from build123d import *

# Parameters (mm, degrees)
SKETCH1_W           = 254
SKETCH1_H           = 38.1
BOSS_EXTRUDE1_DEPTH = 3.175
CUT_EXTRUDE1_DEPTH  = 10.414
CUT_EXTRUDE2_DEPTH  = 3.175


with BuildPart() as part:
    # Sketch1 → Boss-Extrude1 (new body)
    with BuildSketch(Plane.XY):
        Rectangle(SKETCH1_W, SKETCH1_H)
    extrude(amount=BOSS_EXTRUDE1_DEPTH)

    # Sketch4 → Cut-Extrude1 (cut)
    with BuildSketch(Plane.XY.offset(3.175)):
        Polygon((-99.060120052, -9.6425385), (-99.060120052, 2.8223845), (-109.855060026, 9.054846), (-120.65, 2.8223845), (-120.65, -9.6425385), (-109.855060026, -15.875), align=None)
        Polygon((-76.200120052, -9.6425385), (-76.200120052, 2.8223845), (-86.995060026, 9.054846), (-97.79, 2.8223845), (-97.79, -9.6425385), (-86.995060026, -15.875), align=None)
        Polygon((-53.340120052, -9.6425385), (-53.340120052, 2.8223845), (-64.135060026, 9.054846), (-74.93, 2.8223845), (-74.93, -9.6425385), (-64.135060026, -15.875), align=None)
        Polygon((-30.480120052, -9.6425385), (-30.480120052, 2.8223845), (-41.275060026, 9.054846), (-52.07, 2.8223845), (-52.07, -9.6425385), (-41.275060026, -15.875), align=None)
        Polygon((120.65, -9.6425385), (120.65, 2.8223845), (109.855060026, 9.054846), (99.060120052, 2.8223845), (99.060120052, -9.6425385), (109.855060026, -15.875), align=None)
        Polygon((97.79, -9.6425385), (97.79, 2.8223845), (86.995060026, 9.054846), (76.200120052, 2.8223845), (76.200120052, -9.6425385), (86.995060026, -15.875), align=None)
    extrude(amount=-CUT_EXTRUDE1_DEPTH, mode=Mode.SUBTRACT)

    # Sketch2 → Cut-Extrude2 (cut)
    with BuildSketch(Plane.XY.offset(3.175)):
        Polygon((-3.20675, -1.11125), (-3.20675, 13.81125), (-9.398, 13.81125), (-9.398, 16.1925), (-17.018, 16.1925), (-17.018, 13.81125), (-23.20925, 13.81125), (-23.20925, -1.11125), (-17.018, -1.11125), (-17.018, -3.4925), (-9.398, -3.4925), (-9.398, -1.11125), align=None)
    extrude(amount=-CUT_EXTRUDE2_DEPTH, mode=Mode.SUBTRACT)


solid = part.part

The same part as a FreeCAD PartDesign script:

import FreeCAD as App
import Part
import Sketcher

V = App.Vector
Q = App.Units.Quantity

doc = App.newDocument("Part")
params = doc.addObject("Spreadsheet::Sheet", "Params")
for row, (alias, value) in enumerate([
    ("sketch1_width", "10 in"),
    ("sketch1_height", "1.5 in"),
    ("pad1_length", "0.125 in"),
    ("pocket1_length", "0.41 in"),
    ("sketch3_width", "0.3 in"),
    ("sketch3_height", "0.09375 in"),
    ("pocket2_length", "0.125 in"),
], start=1):
    params.set(f"A{row}", alias)
    params.set(f"B{row}", "=" + value)
    params.setAlias(f"B{row}", alias)

body = doc.addObject("PartDesign::Body", "Body")

# Sketch on XY plane
sketch1 = doc.addObject("Sketcher::SketchObject", "Sketch")
body.addObject(sketch1)
sketch1.AttachmentSupport = (doc.XY_Plane, [""])
sketch1.MapMode = "FlatFace"
sketch1.addGeometry(Part.LineSegment(V(-127, 19.05, 0), V(-127, -19.05, 0)), False)
sketch1.addGeometry(Part.LineSegment(V(-127, -19.05, 0), V(127, -19.05, 0)), False)
sketch1.addGeometry(Part.LineSegment(V(127, -19.05, 0), V(127, 19.05, 0)), False)
sketch1.addGeometry(Part.LineSegment(V(127, 19.05, 0), V(-127, 19.05, 0)), False)
sketch1.addConstraint(Sketcher.Constraint("Coincident", 0, 2, 1, 1))
sketch1.addConstraint(Sketcher.Constraint("Coincident", 1, 2, 2, 1))
sketch1.addConstraint(Sketcher.Constraint("Coincident", 2, 2, 3, 1))
sketch1.addConstraint(Sketcher.Constraint("Coincident", 3, 2, 0, 1))
sketch1.addConstraint(Sketcher.Constraint("Vertical", 0))
sketch1.addConstraint(Sketcher.Constraint("Horizontal", 1))
sketch1.addConstraint(Sketcher.Constraint("Vertical", 2))
sketch1.addConstraint(Sketcher.Constraint("Horizontal", 3))
sketch1.addConstraint(Sketcher.Constraint("Symmetric", 0, 2, 2, 2, -1, 1))
sketch1.addConstraint(Sketcher.Constraint("DistanceX", 1, 1, 1, 2, Q("10 in")))
sketch1.addConstraint(Sketcher.Constraint("DistanceY", 0, 2, 0, 1, Q("1.5 in")))
sketch1.setExpression("Constraints[9]", "Params.sketch1_width")
sketch1.setExpression("Constraints[10]", "Params.sketch1_height")
pad1 = doc.addObject("PartDesign::Pad", "Pad")
body.addObject(pad1)
pad1.Profile = sketch1
pad1.setExpression("Length", "Params.pad1_length")

# Sketch on XY plane
sketch2 = doc.addObject("Sketcher::SketchObject", "Sketch001")
body.addObject(sketch2)
sketch2.AttachmentSupport = (doc.XY_Plane, [""])
sketch2.MapMode = "FlatFace"
sketch2.AttachmentOffset = App.Placement(V(0, 0, 0.125 * 25.4), App.Rotation())
sketch2.addGeometry(Part.LineSegment(V(-99.06012, -9.642539, 0), V(-99.06012, 2.822385, 0)), False)
sketch2.addGeometry(Part.LineSegment(V(-99.06012, 2.822385, 0), V(-109.85506, 9.054846, 0)), False)
sketch2.addGeometry(Part.LineSegment(V(-109.85506, 9.054846, 0), V(-120.65, 2.822385, 0)), False)
sketch2.addGeometry(Part.LineSegment(V(-120.65, 2.822385, 0), V(-120.65, -9.642539, 0)), False)
sketch2.addGeometry(Part.LineSegment(V(-120.65, -9.642539, 0), V(-109.85506, -15.875, 0)), False)
sketch2.addGeometry(Part.LineSegment(V(-109.85506, -15.875, 0), V(-99.06012, -9.642539, 0)), False)
sketch2.addGeometry(Part.LineSegment(V(-76.20012, -9.642539, 0), V(-76.20012, 2.822385, 0)), False)
sketch2.addGeometry(Part.LineSegment(V(-76.20012, 2.822385, 0), V(-86.99506, 9.054846, 0)), False)
sketch2.addGeometry(Part.LineSegment(V(-86.99506, 9.054846, 0), V(-97.79, 2.822385, 0)), False)
sketch2.addGeometry(Part.LineSegment(V(-97.79, 2.822385, 0), V(-97.79, -9.642539, 0)), False)
sketch2.addGeometry(Part.LineSegment(V(-97.79, -9.642539, 0), V(-86.99506, -15.875, 0)), False)
sketch2.addGeometry(Part.LineSegment(V(-86.99506, -15.875, 0), V(-76.20012, -9.642539, 0)), False)
sketch2.addGeometry(Part.LineSegment(V(-53.34012, -9.642539, 0), V(-53.34012, 2.822385, 0)), False)
sketch2.addGeometry(Part.LineSegment(V(-53.34012, 2.822385, 0), V(-64.13506, 9.054846, 0)), False)
sketch2.addGeometry(Part.LineSegment(V(-64.13506, 9.054846, 0), V(-74.93, 2.822385, 0)), False)
sketch2.addGeometry(Part.LineSegment(V(-74.93, 2.822385, 0), V(-74.93, -9.642539, 0)), False)
sketch2.addGeometry(Part.LineSegment(V(-74.93, -9.642539, 0), V(-64.13506, -15.875, 0)), False)
sketch2.addGeometry(Part.LineSegment(V(-64.13506, -15.875, 0), V(-53.34012, -9.642539, 0)), False)
sketch2.addGeometry(Part.LineSegment(V(-30.48012, -9.642539, 0), V(-30.48012, 2.822385, 0)), False)
sketch2.addGeometry(Part.LineSegment(V(-30.48012, 2.822385, 0), V(-41.27506, 9.054846, 0)), False)
sketch2.addGeometry(Part.LineSegment(V(-41.27506, 9.054846, 0), V(-52.07, 2.822385, 0)), False)
sketch2.addGeometry(Part.LineSegment(V(-52.07, 2.822385, 0), V(-52.07, -9.642539, 0)), False)
sketch2.addGeometry(Part.LineSegment(V(-52.07, -9.642539, 0), V(-41.27506, -15.875, 0)), False)
sketch2.addGeometry(Part.LineSegment(V(-41.27506, -15.875, 0), V(-30.48012, -9.642539, 0)), False)
sketch2.addGeometry(Part.LineSegment(V(120.65, -9.642539, 0), V(120.65, 2.822385, 0)), False)
sketch2.addGeometry(Part.LineSegment(V(120.65, 2.822385, 0), V(109.85506, 9.054846, 0)), False)
sketch2.addGeometry(Part.LineSegment(V(109.85506, 9.054846, 0), V(99.06012, 2.822385, 0)), False)
sketch2.addGeometry(Part.LineSegment(V(99.06012, 2.822385, 0), V(99.06012, -9.642539, 0)), False)
sketch2.addGeometry(Part.LineSegment(V(99.06012, -9.642539, 0), V(109.85506, -15.875, 0)), False)
sketch2.addGeometry(Part.LineSegment(V(109.85506, -15.875, 0), V(120.65, -9.642539, 0)), False)
sketch2.addGeometry(Part.LineSegment(V(97.79, -9.642539, 0), V(97.79, 2.822385, 0)), False)
sketch2.addGeometry(Part.LineSegment(V(97.79, 2.822385, 0), V(86.99506, 9.054846, 0)), False)
sketch2.addGeometry(Part.LineSegment(V(86.99506, 9.054846, 0), V(76.20012, 2.822385, 0)), False)
sketch2.addGeometry(Part.LineSegment(V(76.20012, 2.822385, 0), V(76.20012, -9.642539, 0)), False)
sketch2.addGeometry(Part.LineSegment(V(76.20012, -9.642539, 0), V(86.99506, -15.875, 0)), False)
sketch2.addGeometry(Part.LineSegment(V(86.99506, -15.875, 0), V(97.79, -9.642539, 0)), False)
sketch2.addConstraint(Sketcher.Constraint("Coincident", 0, 2, 1, 1))
sketch2.addConstraint(Sketcher.Constraint("Coincident", 1, 2, 2, 1))
sketch2.addConstraint(Sketcher.Constraint("Coincident", 2, 2, 3, 1))
sketch2.addConstraint(Sketcher.Constraint("Coincident", 3, 2, 4, 1))
sketch2.addConstraint(Sketcher.Constraint("Coincident", 4, 2, 5, 1))
sketch2.addConstraint(Sketcher.Constraint("Coincident", 5, 2, 0, 1))
sketch2.addConstraint(Sketcher.Constraint("Coincident", 6, 2, 7, 1))
sketch2.addConstraint(Sketcher.Constraint("Coincident", 7, 2, 8, 1))
sketch2.addConstraint(Sketcher.Constraint("Coincident", 8, 2, 9, 1))
sketch2.addConstraint(Sketcher.Constraint("Coincident", 9, 2, 10, 1))
sketch2.addConstraint(Sketcher.Constraint("Coincident", 10, 2, 11, 1))
sketch2.addConstraint(Sketcher.Constraint("Coincident", 11, 2, 6, 1))
sketch2.addConstraint(Sketcher.Constraint("Coincident", 12, 2, 13, 1))
sketch2.addConstraint(Sketcher.Constraint("Coincident", 13, 2, 14, 1))
sketch2.addConstraint(Sketcher.Constraint("Coincident", 14, 2, 15, 1))
sketch2.addConstraint(Sketcher.Constraint("Coincident", 15, 2, 16, 1))
sketch2.addConstraint(Sketcher.Constraint("Coincident", 16, 2, 17, 1))
sketch2.addConstraint(Sketcher.Constraint("Coincident", 17, 2, 12, 1))
sketch2.addConstraint(Sketcher.Constraint("Coincident", 18, 2, 19, 1))
sketch2.addConstraint(Sketcher.Constraint("Coincident", 19, 2, 20, 1))
sketch2.addConstraint(Sketcher.Constraint("Coincident", 20, 2, 21, 1))
sketch2.addConstraint(Sketcher.Constraint("Coincident", 21, 2, 22, 1))
sketch2.addConstraint(Sketcher.Constraint("Coincident", 22, 2, 23, 1))
sketch2.addConstraint(Sketcher.Constraint("Coincident", 23, 2, 18, 1))
sketch2.addConstraint(Sketcher.Constraint("Coincident", 24, 2, 25, 1))
sketch2.addConstraint(Sketcher.Constraint("Coincident", 25, 2, 26, 1))
sketch2.addConstraint(Sketcher.Constraint("Coincident", 26, 2, 27, 1))
sketch2.addConstraint(Sketcher.Constraint("Coincident", 27, 2, 28, 1))
sketch2.addConstraint(Sketcher.Constraint("Coincident", 28, 2, 29, 1))
sketch2.addConstraint(Sketcher.Constraint("Coincident", 29, 2, 24, 1))
sketch2.addConstraint(Sketcher.Constraint("Coincident", 30, 2, 31, 1))
sketch2.addConstraint(Sketcher.Constraint("Coincident", 31, 2, 32, 1))
sketch2.addConstraint(Sketcher.Constraint("Coincident", 32, 2, 33, 1))
sketch2.addConstraint(Sketcher.Constraint("Coincident", 33, 2, 34, 1))
sketch2.addConstraint(Sketcher.Constraint("Coincident", 34, 2, 35, 1))
sketch2.addConstraint(Sketcher.Constraint("Coincident", 35, 2, 30, 1))
sketch2.addConstraint(Sketcher.Constraint("Vertical", 0))
sketch2.addConstraint(Sketcher.Constraint("Vertical", 3))
sketch2.addConstraint(Sketcher.Constraint("Vertical", 6))
sketch2.addConstraint(Sketcher.Constraint("Vertical", 9))
sketch2.addConstraint(Sketcher.Constraint("Vertical", 12))
sketch2.addConstraint(Sketcher.Constraint("Vertical", 15))
sketch2.addConstraint(Sketcher.Constraint("Vertical", 18))
sketch2.addConstraint(Sketcher.Constraint("Vertical", 21))
sketch2.addConstraint(Sketcher.Constraint("Vertical", 24))
sketch2.addConstraint(Sketcher.Constraint("Vertical", 27))
sketch2.addConstraint(Sketcher.Constraint("Vertical", 30))
sketch2.addConstraint(Sketcher.Constraint("Vertical", 33))
sketch2.addConstraint(Sketcher.Constraint("Symmetric", 2, 2, 24, 2, -2))
sketch2.addConstraint(Sketcher.Constraint("Symmetric", 1, 2, 25, 2, -2))
sketch2.addConstraint(Sketcher.Constraint("Symmetric", 0, 2, 26, 2, -2))
sketch2.addConstraint(Sketcher.Constraint("Symmetric", 4, 2, 28, 2, -2))
sketch2.addConstraint(Sketcher.Constraint("Symmetric", 8, 2, 30, 2, -2))
sketch2.addConstraint(Sketcher.Constraint("Symmetric", 7, 2, 31, 2, -2))
sketch2.addConstraint(Sketcher.Constraint("Symmetric", 6, 2, 32, 2, -2))
sketch2.addConstraint(Sketcher.Constraint("Symmetric", 10, 2, 34, 2, -2))
sketch2.addConstraint(Sketcher.Constraint("Parallel", 1, 4))
sketch2.addConstraint(Sketcher.Constraint("Parallel", 2, 5))
sketch2.addConstraint(Sketcher.Constraint("Parallel", 4, 7))
sketch2.addConstraint(Sketcher.Constraint("Parallel", 5, 8))
sketch2.addConstraint(Sketcher.Constraint("Parallel", 7, 10))
sketch2.addConstraint(Sketcher.Constraint("Parallel", 8, 11))
sketch2.addConstraint(Sketcher.Constraint("Parallel", 10, 13))
sketch2.addConstraint(Sketcher.Constraint("Parallel", 11, 14))
sketch2.addConstraint(Sketcher.Constraint("Parallel", 13, 16))
sketch2.addConstraint(Sketcher.Constraint("Parallel", 14, 17))
sketch2.addConstraint(Sketcher.Constraint("Parallel", 16, 19))
sketch2.addConstraint(Sketcher.Constraint("Parallel", 17, 20))
sketch2.addConstraint(Sketcher.Constraint("Parallel", 19, 22))
sketch2.addConstraint(Sketcher.Constraint("Parallel", 20, 23))
sketch2.addConstraint(Sketcher.Constraint("Parallel", 22, 25))
sketch2.addConstraint(Sketcher.Constraint("Parallel", 25, 28))
sketch2.addConstraint(Sketcher.Constraint("Parallel", 26, 29))
sketch2.addConstraint(Sketcher.Constraint("Parallel", 31, 34))
sketch2.addConstraint(Sketcher.Constraint("Parallel", 32, 35))
sketch2.addConstraint(Sketcher.Constraint("Horizontal", 0, 2, 2, 2))
sketch2.addConstraint(Sketcher.Constraint("Horizontal", 3, 2, 5, 2))
sketch2.addConstraint(Sketcher.Constraint("Horizontal", 2, 2, 6, 2))
sketch2.addConstraint(Sketcher.Constraint("Horizontal", 1, 2, 7, 2))
sketch2.addConstraint(Sketcher.Constraint("Horizontal", 6, 2, 8, 2))
sketch2.addConstraint(Sketcher.Constraint("Horizontal", 5, 2, 9, 2))
sketch2.addConstraint(Sketcher.Constraint("Horizontal", 4, 2, 10, 2))
sketch2.addConstraint(Sketcher.Constraint("Horizontal", 8, 2, 12, 2))
sketch2.addConstraint(Sketcher.Constraint("Horizontal", 7, 2, 13, 2))
sketch2.addConstraint(Sketcher.Constraint("Horizontal", 12, 2, 14, 2))
sketch2.addConstraint(Sketcher.Constraint("Horizontal", 11, 2, 15, 2))
sketch2.addConstraint(Sketcher.Constraint("Horizontal", 10, 2, 16, 2))
sketch2.addConstraint(Sketcher.Constraint("Horizontal", 14, 2, 18, 2))
sketch2.addConstraint(Sketcher.Constraint("Horizontal", 13, 2, 19, 2))
sketch2.addConstraint(Sketcher.Constraint("Horizontal", 18, 2, 20, 2))
sketch2.addConstraint(Sketcher.Constraint("Horizontal", 17, 2, 21, 2))
sketch2.addConstraint(Sketcher.Constraint("Horizontal", 16, 2, 22, 2))
sketch2.addConstraint(Sketcher.Constraint("Angle", 1, Q("150 deg")))
sketch2.addConstraint(Sketcher.Constraint("DistanceX", 0, 2, 6, 2, Q("0.9 in")))
sketch2.addConstraint(Sketcher.Constraint("DistanceX", 6, 2, 12, 2, Q("0.9 in")))
sketch2.addConstraint(Sketcher.Constraint("DistanceX", 12, 2, 18, 2, Q("0.9 in")))
sketch2.addConstraint(Sketcher.Constraint("DistanceX", 20, 2, 24, 2, Q("6.8 in")))
sketch2.addConstraint(Sketcher.Constraint("DistanceY", 4, 2, -1, 1, Q("0.625 in")))
sketch2.addConstraint(Sketcher.Constraint("DistanceY", 0, 1, 0, 2, 12.464923))
sketch2.addConstraint(Sketcher.Constraint("DistanceX", 0, 2, -1, 1, 99.06012))
pocket1 = doc.addObject("PartDesign::Pocket", "Pocket")
body.addObject(pocket1)
pocket1.Profile = sketch2
pocket1.setExpression("Length", "Params.pocket1_length")

# Sketch on XY plane
sketch3 = doc.addObject("Sketcher::SketchObject", "Sketch002")
body.addObject(sketch3)
sketch3.AttachmentSupport = (doc.XY_Plane, [""])
sketch3.MapMode = "FlatFace"
sketch3.AttachmentOffset = App.Placement(V(0, 0, 0.125 * 25.4), App.Rotation())
sketch3.addGeometry(Part.LineSegment(V(-3.20675, -1.11125, 0), V(-3.20675, 13.81125, 0)), False)
sketch3.addGeometry(Part.LineSegment(V(-3.20675, 13.81125, 0), V(-9.398, 13.81125, 0)), False)
sketch3.addGeometry(Part.LineSegment(V(-9.398, 13.81125, 0), V(-9.398, 16.1925, 0)), False)
sketch3.addGeometry(Part.LineSegment(V(-9.398, 16.1925, 0), V(-17.018, 16.1925, 0)), False)
sketch3.addGeometry(Part.LineSegment(V(-17.018, 16.1925, 0), V(-17.018, 13.81125, 0)), False)
sketch3.addGeometry(Part.LineSegment(V(-17.018, 13.81125, 0), V(-23.20925, 13.81125, 0)), False)
sketch3.addGeometry(Part.LineSegment(V(-23.20925, 13.81125, 0), V(-23.20925, -1.11125, 0)), False)
sketch3.addGeometry(Part.LineSegment(V(-23.20925, -1.11125, 0), V(-17.018, -1.11125, 0)), False)
sketch3.addGeometry(Part.LineSegment(V(-17.018, -1.11125, 0), V(-17.018, -3.4925, 0)), False)
sketch3.addGeometry(Part.LineSegment(V(-17.018, -3.4925, 0), V(-9.398, -3.4925, 0)), False)
sketch3.addGeometry(Part.LineSegment(V(-9.398, -3.4925, 0), V(-9.398, -1.11125, 0)), False)
sketch3.addGeometry(Part.LineSegment(V(-9.398, -1.11125, 0), V(-3.20675, -1.11125, 0)), False)
sketch3.addConstraint(Sketcher.Constraint("Coincident", 0, 2, 1, 1))
sketch3.addConstraint(Sketcher.Constraint("Coincident", 1, 2, 2, 1))
sketch3.addConstraint(Sketcher.Constraint("Coincident", 2, 2, 3, 1))
sketch3.addConstraint(Sketcher.Constraint("Coincident", 3, 2, 4, 1))
sketch3.addConstraint(Sketcher.Constraint("Coincident", 4, 2, 5, 1))
sketch3.addConstraint(Sketcher.Constraint("Coincident", 5, 2, 6, 1))
sketch3.addConstraint(Sketcher.Constraint("Coincident", 6, 2, 7, 1))
sketch3.addConstraint(Sketcher.Constraint("Coincident", 7, 2, 8, 1))
sketch3.addConstraint(Sketcher.Constraint("Coincident", 8, 2, 9, 1))
sketch3.addConstraint(Sketcher.Constraint("Coincident", 9, 2, 10, 1))
sketch3.addConstraint(Sketcher.Constraint("Coincident", 10, 2, 11, 1))
sketch3.addConstraint(Sketcher.Constraint("Coincident", 11, 2, 0, 1))
sketch3.addConstraint(Sketcher.Constraint("Vertical", 0))
sketch3.addConstraint(Sketcher.Constraint("Horizontal", 1))
sketch3.addConstraint(Sketcher.Constraint("Vertical", 2))
sketch3.addConstraint(Sketcher.Constraint("Horizontal", 3))
sketch3.addConstraint(Sketcher.Constraint("Vertical", 4))
sketch3.addConstraint(Sketcher.Constraint("Horizontal", 5))
sketch3.addConstraint(Sketcher.Constraint("Vertical", 6))
sketch3.addConstraint(Sketcher.Constraint("Horizontal", 7))
sketch3.addConstraint(Sketcher.Constraint("Vertical", 8))
sketch3.addConstraint(Sketcher.Constraint("Horizontal", 9))
sketch3.addConstraint(Sketcher.Constraint("Vertical", 10))
sketch3.addConstraint(Sketcher.Constraint("Horizontal", 11))
sketch3.addConstraint(Sketcher.Constraint("Horizontal", 1, 2, 4, 2))
sketch3.addConstraint(Sketcher.Constraint("Horizontal", 7, 2, 10, 2))
sketch3.addConstraint(Sketcher.Constraint("Vertical", 4, 2, 7, 2))
sketch3.addConstraint(Sketcher.Constraint("Vertical", 2, 2, 9, 2))
sketch3.addConstraint(Sketcher.Constraint("Equal", 1, 5))
sketch3.addConstraint(Sketcher.Constraint("Equal", 4, 8))
sketch3.addConstraint(Sketcher.Constraint("DistanceX", 3, 2, 3, 1, Q("0.3 in")))
sketch3.addConstraint(Sketcher.Constraint("DistanceY", 2, 1, 2, 2, Q("0.09375 in")))
sketch3.addConstraint(Sketcher.Constraint("DistanceX", 1, 2, -1, 1, Q("0.37 in")))
sketch3.addConstraint(Sketcher.Constraint("DistanceY", 0, 1, 0, 2, Q("0.5875 in")))
sketch3.addConstraint(Sketcher.Constraint("DistanceY", -1, 1, 2, 2, Q("0.6375 in")))
sketch3.addConstraint(Sketcher.Constraint("DistanceX", 5, 2, 0, 2, Q("0.7875 in")))
sketch3.setExpression("Constraints[30]", "Params.sketch3_width")
sketch3.setExpression("Constraints[31]", "Params.sketch3_height")
pocket2 = doc.addObject("PartDesign::Pocket", "Pocket001")
body.addObject(pocket2)
pocket2.Profile = sketch3
pocket2.setExpression("Length", "Params.pocket2_length")

doc.recompute()
